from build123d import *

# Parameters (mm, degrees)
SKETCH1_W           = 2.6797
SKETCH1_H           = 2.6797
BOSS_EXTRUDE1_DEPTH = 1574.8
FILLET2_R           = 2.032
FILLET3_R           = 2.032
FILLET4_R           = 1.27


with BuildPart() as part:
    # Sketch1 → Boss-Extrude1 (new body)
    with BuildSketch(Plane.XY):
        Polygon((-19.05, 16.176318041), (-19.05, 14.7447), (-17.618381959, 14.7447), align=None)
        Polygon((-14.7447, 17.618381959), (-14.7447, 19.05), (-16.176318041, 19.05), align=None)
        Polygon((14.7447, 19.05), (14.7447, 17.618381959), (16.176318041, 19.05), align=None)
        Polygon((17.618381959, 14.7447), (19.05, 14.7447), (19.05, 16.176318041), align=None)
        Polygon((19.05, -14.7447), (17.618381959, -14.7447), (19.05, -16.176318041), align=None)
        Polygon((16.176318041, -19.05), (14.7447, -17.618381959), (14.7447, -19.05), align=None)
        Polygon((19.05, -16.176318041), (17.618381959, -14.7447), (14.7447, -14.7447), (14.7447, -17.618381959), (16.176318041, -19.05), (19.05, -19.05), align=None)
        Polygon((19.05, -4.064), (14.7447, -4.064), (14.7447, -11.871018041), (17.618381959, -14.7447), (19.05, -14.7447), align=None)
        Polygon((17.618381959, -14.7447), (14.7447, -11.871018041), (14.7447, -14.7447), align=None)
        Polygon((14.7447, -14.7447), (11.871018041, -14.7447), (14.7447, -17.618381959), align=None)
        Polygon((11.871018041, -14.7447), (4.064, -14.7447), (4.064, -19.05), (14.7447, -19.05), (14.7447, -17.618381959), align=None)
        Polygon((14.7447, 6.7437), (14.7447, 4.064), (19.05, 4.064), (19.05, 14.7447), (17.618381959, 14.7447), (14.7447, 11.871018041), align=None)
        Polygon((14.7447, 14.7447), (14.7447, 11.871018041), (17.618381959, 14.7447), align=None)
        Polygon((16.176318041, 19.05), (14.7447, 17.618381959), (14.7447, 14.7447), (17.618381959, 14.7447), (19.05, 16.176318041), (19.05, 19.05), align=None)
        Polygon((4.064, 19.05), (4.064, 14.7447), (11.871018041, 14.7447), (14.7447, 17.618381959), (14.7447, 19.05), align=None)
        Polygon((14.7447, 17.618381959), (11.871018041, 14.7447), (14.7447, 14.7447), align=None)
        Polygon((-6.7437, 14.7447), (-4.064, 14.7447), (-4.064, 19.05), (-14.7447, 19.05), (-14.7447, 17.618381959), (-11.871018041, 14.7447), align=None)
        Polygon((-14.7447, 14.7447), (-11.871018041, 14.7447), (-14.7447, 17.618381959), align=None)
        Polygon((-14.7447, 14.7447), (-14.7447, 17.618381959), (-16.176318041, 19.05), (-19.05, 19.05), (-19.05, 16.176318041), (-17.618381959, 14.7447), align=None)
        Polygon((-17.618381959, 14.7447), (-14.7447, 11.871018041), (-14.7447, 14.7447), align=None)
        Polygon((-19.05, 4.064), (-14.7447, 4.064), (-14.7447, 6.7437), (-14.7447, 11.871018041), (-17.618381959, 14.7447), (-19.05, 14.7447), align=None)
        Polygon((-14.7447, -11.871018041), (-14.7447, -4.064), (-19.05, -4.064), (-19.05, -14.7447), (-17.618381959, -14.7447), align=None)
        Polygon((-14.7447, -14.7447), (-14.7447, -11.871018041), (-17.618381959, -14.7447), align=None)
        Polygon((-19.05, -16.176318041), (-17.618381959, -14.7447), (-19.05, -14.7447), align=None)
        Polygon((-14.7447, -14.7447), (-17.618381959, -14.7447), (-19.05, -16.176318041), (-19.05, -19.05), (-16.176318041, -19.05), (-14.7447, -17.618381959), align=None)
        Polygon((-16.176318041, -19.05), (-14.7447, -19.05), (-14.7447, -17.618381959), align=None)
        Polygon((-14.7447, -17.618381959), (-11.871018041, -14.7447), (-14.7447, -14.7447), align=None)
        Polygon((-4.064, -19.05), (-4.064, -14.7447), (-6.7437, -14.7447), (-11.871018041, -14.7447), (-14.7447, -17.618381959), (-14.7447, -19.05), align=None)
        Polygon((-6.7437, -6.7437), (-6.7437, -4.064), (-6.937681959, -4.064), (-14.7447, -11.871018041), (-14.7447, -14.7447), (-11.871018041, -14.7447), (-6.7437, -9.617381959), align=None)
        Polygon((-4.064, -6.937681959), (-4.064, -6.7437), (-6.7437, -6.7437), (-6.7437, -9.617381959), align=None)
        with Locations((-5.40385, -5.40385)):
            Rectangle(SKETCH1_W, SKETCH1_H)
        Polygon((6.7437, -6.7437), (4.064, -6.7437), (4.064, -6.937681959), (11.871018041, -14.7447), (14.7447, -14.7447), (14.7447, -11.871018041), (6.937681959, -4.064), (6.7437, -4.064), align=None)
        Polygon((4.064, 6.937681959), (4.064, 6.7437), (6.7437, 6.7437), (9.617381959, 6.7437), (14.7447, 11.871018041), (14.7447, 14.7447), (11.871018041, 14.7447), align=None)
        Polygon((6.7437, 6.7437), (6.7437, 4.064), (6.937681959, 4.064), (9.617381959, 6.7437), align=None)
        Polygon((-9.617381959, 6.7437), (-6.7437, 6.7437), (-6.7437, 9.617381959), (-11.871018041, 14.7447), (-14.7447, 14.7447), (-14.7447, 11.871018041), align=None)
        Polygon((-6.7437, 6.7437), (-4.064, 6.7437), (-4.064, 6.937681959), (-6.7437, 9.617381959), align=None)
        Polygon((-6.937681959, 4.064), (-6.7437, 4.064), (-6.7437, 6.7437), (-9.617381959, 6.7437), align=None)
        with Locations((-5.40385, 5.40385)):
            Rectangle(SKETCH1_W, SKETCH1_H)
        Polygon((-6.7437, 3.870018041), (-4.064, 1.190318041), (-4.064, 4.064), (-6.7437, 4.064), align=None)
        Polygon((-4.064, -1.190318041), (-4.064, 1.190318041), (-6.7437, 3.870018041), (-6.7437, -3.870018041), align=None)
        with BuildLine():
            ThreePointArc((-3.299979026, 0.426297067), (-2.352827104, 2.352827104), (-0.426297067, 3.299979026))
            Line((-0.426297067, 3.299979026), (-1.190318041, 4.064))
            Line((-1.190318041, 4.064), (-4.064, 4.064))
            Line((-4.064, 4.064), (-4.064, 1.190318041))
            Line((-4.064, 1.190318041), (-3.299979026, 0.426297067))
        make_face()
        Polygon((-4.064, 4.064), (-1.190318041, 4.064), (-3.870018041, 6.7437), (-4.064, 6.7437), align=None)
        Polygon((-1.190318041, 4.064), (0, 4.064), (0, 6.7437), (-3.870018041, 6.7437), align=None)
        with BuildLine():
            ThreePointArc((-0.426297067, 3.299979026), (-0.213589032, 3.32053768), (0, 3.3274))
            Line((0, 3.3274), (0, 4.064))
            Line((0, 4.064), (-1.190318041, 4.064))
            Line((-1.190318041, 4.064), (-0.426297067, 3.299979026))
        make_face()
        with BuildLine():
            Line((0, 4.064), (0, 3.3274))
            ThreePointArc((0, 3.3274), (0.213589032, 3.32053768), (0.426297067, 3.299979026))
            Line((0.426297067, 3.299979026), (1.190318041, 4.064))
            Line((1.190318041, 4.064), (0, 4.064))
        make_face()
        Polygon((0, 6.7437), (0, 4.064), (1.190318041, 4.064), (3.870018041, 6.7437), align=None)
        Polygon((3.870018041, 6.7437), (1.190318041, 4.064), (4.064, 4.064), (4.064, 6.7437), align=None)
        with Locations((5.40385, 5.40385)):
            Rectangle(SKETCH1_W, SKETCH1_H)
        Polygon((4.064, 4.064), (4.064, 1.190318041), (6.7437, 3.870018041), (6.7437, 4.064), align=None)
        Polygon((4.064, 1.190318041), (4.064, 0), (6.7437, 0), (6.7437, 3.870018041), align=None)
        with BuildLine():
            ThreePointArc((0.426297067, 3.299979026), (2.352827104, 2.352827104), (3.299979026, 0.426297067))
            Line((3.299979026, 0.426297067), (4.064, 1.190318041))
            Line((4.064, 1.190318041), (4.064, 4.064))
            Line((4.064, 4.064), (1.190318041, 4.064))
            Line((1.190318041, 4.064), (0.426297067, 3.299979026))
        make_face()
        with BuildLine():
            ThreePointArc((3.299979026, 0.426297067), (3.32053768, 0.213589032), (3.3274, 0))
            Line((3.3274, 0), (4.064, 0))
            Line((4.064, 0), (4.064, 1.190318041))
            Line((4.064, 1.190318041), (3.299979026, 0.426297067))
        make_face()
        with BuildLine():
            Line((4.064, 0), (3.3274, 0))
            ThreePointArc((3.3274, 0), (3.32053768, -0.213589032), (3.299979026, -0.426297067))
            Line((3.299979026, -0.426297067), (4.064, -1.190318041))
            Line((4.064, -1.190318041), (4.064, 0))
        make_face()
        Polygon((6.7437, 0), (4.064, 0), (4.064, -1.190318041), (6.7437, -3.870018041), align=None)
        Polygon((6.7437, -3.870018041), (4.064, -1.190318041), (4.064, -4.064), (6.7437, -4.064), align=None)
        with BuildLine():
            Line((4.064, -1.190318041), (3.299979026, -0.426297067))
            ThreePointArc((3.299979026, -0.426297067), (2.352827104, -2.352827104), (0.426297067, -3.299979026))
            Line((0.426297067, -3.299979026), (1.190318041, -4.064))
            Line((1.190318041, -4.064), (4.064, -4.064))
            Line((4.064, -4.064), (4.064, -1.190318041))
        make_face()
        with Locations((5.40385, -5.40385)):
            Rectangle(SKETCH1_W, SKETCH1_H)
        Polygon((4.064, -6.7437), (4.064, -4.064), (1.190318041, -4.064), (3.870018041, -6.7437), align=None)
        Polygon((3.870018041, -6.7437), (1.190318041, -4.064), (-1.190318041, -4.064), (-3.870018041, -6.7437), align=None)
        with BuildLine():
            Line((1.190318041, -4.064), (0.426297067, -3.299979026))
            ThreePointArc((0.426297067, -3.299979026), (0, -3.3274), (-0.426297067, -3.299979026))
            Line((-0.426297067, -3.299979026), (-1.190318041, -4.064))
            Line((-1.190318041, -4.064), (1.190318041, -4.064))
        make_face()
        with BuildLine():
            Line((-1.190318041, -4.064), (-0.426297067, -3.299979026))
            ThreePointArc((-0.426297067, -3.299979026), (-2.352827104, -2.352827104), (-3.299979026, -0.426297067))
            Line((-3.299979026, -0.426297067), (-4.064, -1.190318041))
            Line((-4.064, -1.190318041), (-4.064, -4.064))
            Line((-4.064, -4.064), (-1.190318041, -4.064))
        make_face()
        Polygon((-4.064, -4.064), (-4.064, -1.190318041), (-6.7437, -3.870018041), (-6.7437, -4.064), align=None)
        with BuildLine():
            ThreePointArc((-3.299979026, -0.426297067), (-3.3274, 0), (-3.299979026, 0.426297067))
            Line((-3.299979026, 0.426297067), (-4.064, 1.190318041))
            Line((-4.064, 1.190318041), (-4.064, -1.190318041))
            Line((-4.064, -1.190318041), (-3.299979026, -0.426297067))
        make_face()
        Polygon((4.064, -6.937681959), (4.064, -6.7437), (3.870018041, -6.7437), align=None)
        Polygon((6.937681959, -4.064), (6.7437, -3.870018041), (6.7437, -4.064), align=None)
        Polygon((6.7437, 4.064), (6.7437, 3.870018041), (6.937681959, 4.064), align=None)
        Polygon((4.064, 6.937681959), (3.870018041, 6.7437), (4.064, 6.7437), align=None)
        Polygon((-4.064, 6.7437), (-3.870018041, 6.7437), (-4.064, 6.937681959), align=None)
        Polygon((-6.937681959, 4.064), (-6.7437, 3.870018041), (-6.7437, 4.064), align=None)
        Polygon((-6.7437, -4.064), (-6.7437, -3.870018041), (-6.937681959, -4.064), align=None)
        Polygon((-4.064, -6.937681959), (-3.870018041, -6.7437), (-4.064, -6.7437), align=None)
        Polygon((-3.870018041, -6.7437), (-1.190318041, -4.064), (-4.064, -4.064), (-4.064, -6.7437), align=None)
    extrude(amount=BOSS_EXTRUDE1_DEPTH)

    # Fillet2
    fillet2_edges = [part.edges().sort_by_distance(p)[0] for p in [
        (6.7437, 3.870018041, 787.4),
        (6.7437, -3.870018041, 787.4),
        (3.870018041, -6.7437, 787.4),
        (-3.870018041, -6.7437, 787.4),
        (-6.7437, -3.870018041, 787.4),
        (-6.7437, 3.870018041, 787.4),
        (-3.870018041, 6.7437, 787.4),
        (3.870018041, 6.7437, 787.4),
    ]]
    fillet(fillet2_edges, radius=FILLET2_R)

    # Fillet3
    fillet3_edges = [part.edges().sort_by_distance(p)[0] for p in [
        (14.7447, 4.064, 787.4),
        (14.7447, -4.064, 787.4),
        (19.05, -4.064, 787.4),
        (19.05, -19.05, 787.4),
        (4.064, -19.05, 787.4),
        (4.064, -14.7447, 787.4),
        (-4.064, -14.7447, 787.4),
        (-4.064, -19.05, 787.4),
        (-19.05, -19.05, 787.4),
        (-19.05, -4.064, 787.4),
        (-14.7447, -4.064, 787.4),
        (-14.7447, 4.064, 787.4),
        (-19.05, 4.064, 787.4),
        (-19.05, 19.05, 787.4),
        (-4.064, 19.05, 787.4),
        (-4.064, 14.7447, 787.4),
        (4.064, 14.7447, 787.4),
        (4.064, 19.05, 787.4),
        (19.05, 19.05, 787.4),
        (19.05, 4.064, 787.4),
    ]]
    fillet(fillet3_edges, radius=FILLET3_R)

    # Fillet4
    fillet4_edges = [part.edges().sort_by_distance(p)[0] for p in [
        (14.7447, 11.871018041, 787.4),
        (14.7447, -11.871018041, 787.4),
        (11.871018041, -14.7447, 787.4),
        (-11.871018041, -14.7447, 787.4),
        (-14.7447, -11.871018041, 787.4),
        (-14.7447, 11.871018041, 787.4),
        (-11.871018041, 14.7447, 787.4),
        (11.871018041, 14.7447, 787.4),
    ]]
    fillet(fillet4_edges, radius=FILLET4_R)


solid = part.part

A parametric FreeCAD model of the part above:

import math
import FreeCAD as App
import Part
import Sketcher
from FreeCAD import Vector
Q = App.Units.Quantity


def edges_at(feature, points):
    """Names of the edges that pass closest to the given points."""
    edges = feature.Shape.Edges
    near = lambda p: min(range(len(edges)), key=lambda i: edges[i].distToShape(Part.Vertex(*p))[0])
    return sorted({f"Edge{near(p) + 1}" for p in points})

doc = App.newDocument("Part")
body = doc.addObject("PartDesign::Body", "Body")

# Sketch on XY plane
sketch1 = doc.addObject("Sketcher::SketchObject", "Sketch")
body.addObject(sketch1)
sketch1.AttachmentSupport = (doc.XY_Plane, [""])
sketch1.MapMode = "FlatFace"
sketch1.addGeometry([
    Part.LineSegment(Vector(-11.87, -14.74, 0), Vector(-3.87, -6.74, 0)),  # 0
    Part.LineSegment(Vector(-3.87, -6.74, 0), Vector(3.87, -6.74, 0)),  # 1
    Part.LineSegment(Vector(3.87, -6.74, 0), Vector(11.87, -14.74, 0)),  # 2
    Part.LineSegment(Vector(11.87, -14.74, 0), Vector(4.06, -14.74, 0)),  # 3
    Part.LineSegment(Vector(4.06, -14.74, 0), Vector(4.06, -19.05, 0)),  # 4
    Part.LineSegment(Vector(4.06, -19.05, 0), Vector(19.05, -19.05, 0)),  # 5
    Part.LineSegment(Vector(19.05, -19.05, 0), Vector(19.05, -4.06, 0)),  # 6
    Part.LineSegment(Vector(19.05, -4.06, 0), Vector(14.74, -4.06, 0)),  # 7
    Part.LineSegment(Vector(14.74, -4.06, 0), Vector(14.74, -11.87, 0)),  # 8
    Part.LineSegment(Vector(14.74, -11.87, 0), Vector(6.74, -3.87, 0)),  # 9
    Part.LineSegment(Vector(6.74, -3.87, 0), Vector(6.74, 3.87, 0)),  # 10
    Part.LineSegment(Vector(6.74, 3.87, 0), Vector(14.74, 11.87, 0)),  # 11
    Part.LineSegment(Vector(14.74, 11.87, 0), Vector(14.74, 4.06, 0)),  # 12
    Part.LineSegment(Vector(14.74, 4.06, 0), Vector(19.05, 4.06, 0)),  # 13
    Part.LineSegment(Vector(19.05, 4.06, 0), Vector(19.05, 19.05, 0)),  # 14
    Part.LineSegment(Vector(19.05, 19.05, 0), Vector(4.06, 19.05, 0)),  # 15
    Part.LineSegment(Vector(4.06, 19.05, 0), Vector(4.06, 14.74, 0)),  # 16
    Part.LineSegment(Vector(4.06, 14.74, 0), Vector(11.87, 14.74, 0)),  # 17
    Part.LineSegment(Vector(11.87, 14.74, 0), Vector(3.87, 6.74, 0)),  # 18
    Part.LineSegment(Vector(3.87, 6.74, 0), Vector(-3.87, 6.74, 0)),  # 19
    Part.LineSegment(Vector(-3.87, 6.74, 0), Vector(-11.87, 14.74, 0)),  # 20
    Part.LineSegment(Vector(-11.87, 14.74, 0), Vector(-4.06, 14.74, 0)),  # 21
    Part.LineSegment(Vector(-4.06, 14.74, 0), Vector(-4.06, 19.05, 0)),  # 22
    Part.LineSegment(Vector(-4.06, 19.05, 0), Vector(-19.05, 19.05, 0)),  # 23
    Part.LineSegment(Vector(-19.05, 19.05, 0), Vector(-19.05, 4.06, 0)),  # 24
    Part.LineSegment(Vector(-19.05, 4.06, 0), Vector(-14.74, 4.06, 0)),  # 25
    Part.LineSegment(Vector(-14.74, 4.06, 0), Vector(-14.74, 11.87, 0)),  # 26
    Part.LineSegment(Vector(-14.74, 11.87, 0), Vector(-6.74, 3.87, 0)),  # 27
    Part.LineSegment(Vector(-6.74, 3.87, 0), Vector(-6.74, -3.87, 0)),  # 28
    Part.LineSegment(Vector(-6.74, -3.87, 0), Vector(-14.74, -11.87, 0)),  # 29
    Part.LineSegment(Vector(-14.74, -11.87, 0), Vector(-14.74, -4.06, 0)),  # 30
    Part.LineSegment(Vector(-14.74, -4.06, 0), Vector(-19.05, -4.06, 0)),  # 31
    Part.LineSegment(Vector(-19.05, -4.06, 0), Vector(-19.05, -19.05, 0)),  # 32
    Part.LineSegment(Vector(-19.05, -19.05, 0), Vector(-4.06, -19.05, 0)),  # 33
    Part.LineSegment(Vector(-4.06, -19.05, 0), Vector(-4.06, -14.74, 0)),  # 34
    Part.LineSegment(Vector(-4.06, -14.74, 0), Vector(-11.87, -14.74, 0)),  # 35
    Part.ArcOfCircle(Part.Circle(Vector(0, 0, 0), Vector(0, 0, 1), 3.33), math.radians(97), math.radians(173)),  # 36
    Part.ArcOfCircle(Part.Circle(Vector(0, 0, 0), Vector(0, 0, 1), 3.33), math.radians(90), math.radians(97.36)),  # 37
    Part.ArcOfCircle(Part.Circle(Vector(0, 0, 0), Vector(0, 0, 1), 3.33), math.radians(82.64), math.radians(90)),  # 38
    Part.ArcOfCircle(Part.Circle(Vector(0, 0, 0), Vector(0, 0, 1), 3.33), math.radians(7), math.radians(83)),  # 39
    Part.ArcOfCircle(Part.Circle(Vector(0, 0, 0), Vector(0, 0, 1), 3.33), math.radians(0), math.radians(7.36)),  # 40
    Part.ArcOfCircle(Part.Circle(Vector(0, 0, 0), Vector(0, 0, 1), 3.33), math.radians(-7.36), math.radians(0)),  # 41
    Part.ArcOfCircle(Part.Circle(Vector(0, 0, 0), Vector(0, 0, 1), 3.33), math.radians(-83), math.radians(-7)),  # 42
    Part.ArcOfCircle(Part.Circle(Vector(0, 0, 0), Vector(0, 0, 1), 3.33), math.radians(-97.36), math.radians(-82.64)),  # 43
    Part.ArcOfCircle(Part.Circle(Vector(0, 0, 0), Vector(0, 0, 1), 3.33), math.radians(-173), math.radians(-97)),  # 44
    Part.ArcOfCircle(Part.Circle(Vector(0, 0, 0), Vector(0, 0, 1), 3.33), math.radians(172.64), math.radians(187.36)),  # 45
], False)
sketch1.addConstraint([
    Sketcher.Constraint("Coincident", 0, 2, 1, 1),
    Sketcher.Constraint("Coincident", 1, 2, 2, 1),
    Sketcher.Constraint("Coincident", 2, 2, 3, 1),
    Sketcher.Constraint("Coincident", 3, 2, 4, 1),
    Sketcher.Constraint("Coincident", 4, 2, 5, 1),
    Sketcher.Constraint("Coincident", 5, 2, 6, 1),
    Sketcher.Constraint("Coincident", 6, 2, 7, 1),
    Sketcher.Constraint("Coincident", 7, 2, 8, 1),
    Sketcher.Constraint("Coincident", 8, 2, 9, 1),
    Sketcher.Constraint("Coincident", 9, 2, 10, 1),
    Sketcher.Constraint("Coincident", 10, 2, 11, 1),
    Sketcher.Constraint("Coincident", 11, 2, 12, 1),
    Sketcher.Constraint("Coincident", 12, 2, 13, 1),
    Sketcher.Constraint("Coincident", 13, 2, 14, 1),
    Sketcher.Constraint("Coincident", 14, 2, 15, 1),
    Sketcher.Constraint("Coincident", 15, 2, 16, 1),
    Sketcher.Constraint("Coincident", 16, 2, 17, 1),
    Sketcher.Constraint("Coincident", 17, 2, 18, 1),
    Sketcher.Constraint("Coincident", 18, 2, 19, 1),
    Sketcher.Constraint("Coincident", 19, 2, 20, 1),
    Sketcher.Constraint("Coincident", 20, 2, 21, 1),
    Sketcher.Constraint("Coincident", 21, 2, 22, 1),
    Sketcher.Constraint("Coincident", 22, 2, 23, 1),
    Sketcher.Constraint("Coincident", 23, 2, 24, 1),
    Sketcher.Constraint("Coincident", 24, 2, 25, 1),
    Sketcher.Constraint("Coincident", 25, 2, 26, 1),
    Sketcher.Constraint("Coincident", 26, 2, 27, 1),
    Sketcher.Constraint("Coincident", 27, 2, 28, 1),
    Sketcher.Constraint("Coincident", 28, 2, 29, 1),
    Sketcher.Constraint("Coincident", 29, 2, 30, 1),
    Sketcher.Constraint("Coincident", 30, 2, 31, 1),
    Sketcher.Constraint("Coincident", 31, 2, 32, 1),
    Sketcher.Constraint("Coincident", 32, 2, 33, 1),
    Sketcher.Constraint("Coincident", 33, 2, 34, 1),
    Sketcher.Constraint("Coincident", 34, 2, 35, 1),
    Sketcher.Constraint("Coincident", 35, 2, 0, 1),
    Sketcher.Constraint("Tangent", 36, 1, 37, 2),
    Sketcher.Constraint("Tangent", 37, 1, 38, 2),
    Sketcher.Constraint("Tangent", 38, 1, 39, 2),
    Sketcher.Constraint("Tangent", 39, 1, 40, 2),
    Sketcher.Constraint("Tangent", 40, 1, 41, 2),
    Sketcher.Constraint("Tangent", 41, 1, 42, 2),
    Sketcher.Constraint("Tangent", 42, 1, 43, 2),
    Sketcher.Constraint("Tangent", 43, 1, 44, 2),
    Sketcher.Constraint("Tangent", 44, 1, 45, 2),
    Sketcher.Constraint("Tangent", 45, 1, 36, 2),
    Sketcher.Constraint("Horizontal", 1),
    Sketcher.Constraint("Horizontal", 3),
    Sketcher.Constraint("Vertical", 4),
    Sketcher.Constraint("Horizontal", 5),
    Sketcher.Constraint("Vertical", 6),
    Sketcher.Constraint("Horizontal", 7),
    Sketcher.Constraint("Vertical", 8),
    Sketcher.Constraint("Vertical", 10),
    Sketcher.Constraint("Vertical", 12),
    Sketcher.Constraint("Horizontal", 13),
    Sketcher.Constraint("Vertical", 14),
    Sketcher.Constraint("Horizontal", 15),
    Sketcher.Constraint("Vertical", 16),
    Sketcher.Constraint("Horizontal", 17),
    Sketcher.Constraint("Horizontal", 19),
    Sketcher.Constraint("Horizontal", 21),
    Sketcher.Constraint("Vertical", 22),
    Sketcher.Constraint("Horizontal", 23),
    Sketcher.Constraint("Vertical", 24),
    Sketcher.Constraint("Horizontal", 25),
    Sketcher.Constraint("Vertical", 26),
    Sketcher.Constraint("Vertical", 28),
    Sketcher.Constraint("Vertical", 30),
    Sketcher.Constraint("Horizontal", 31),
    Sketcher.Constraint("Vertical", 32),
    Sketcher.Constraint("Horizontal", 33),
    Sketcher.Constraint("Vertical", 34),
    Sketcher.Constraint("Horizontal", 35),
    Sketcher.Constraint("Coincident", 36, 3, -1, 1),
    Sketcher.Constraint("Coincident", 38, 3, -1, 1),
    Sketcher.Constraint("Coincident", 40, 3, -1, 1),
    Sketcher.Constraint("Coincident", 42, 3, -1, 1),
    Sketcher.Constraint("Equal", 42, 43),
    Sketcher.Constraint("Symmetric", 0, 2, 18, 2, -1, 1),
    Sketcher.Constraint("Symmetric", 2, 2, 20, 2, -1, 1),
    Sketcher.Constraint("Symmetric", 4, 2, 22, 2, -1, 1),
    Sketcher.Constraint("Symmetric", 6, 2, 24, 2, -1, 1),
    Sketcher.Constraint("Symmetric", 8, 2, 26, 2, -1, 1),
    Sketcher.Constraint("Symmetric", 9, 2, 27, 2, -1, 1),
    Sketcher.Constraint("Symmetric", 11, 2, 29, 2, -1, 1),
    Sketcher.Constraint("Symmetric", 13, 2, 31, 2, -1, 1),
    Sketcher.Constraint("Symmetric", 15, 2, 33, 2, -1, 1),
    Sketcher.Constraint("Symmetric", 17, 2, 35, 2, -1, 1),
    Sketcher.Constraint("Symmetric", 17, 2, 20, 2, -2),
    Sketcher.Constraint("Symmetric", 15, 2, 22, 2, -2),
    Sketcher.Constraint("Symmetric", 13, 2, 24, 2, -2),
    Sketcher.Constraint("Symmetric", 11, 2, 26, 2, -2),
    Sketcher.Constraint("PointOnObject", 37, 1, -2),
    Sketcher.Constraint("PointOnObject", 40, 1, -1),
    Sketcher.Constraint("Perpendicular", 0, 2),
    Sketcher.Constraint("Parallel", 2, 9),
    Sketcher.Constraint("Perpendicular", 9, 11),
    Sketcher.Constraint("Perpendicular", 18, 20),
    Sketcher.Constraint("Perpendicular", 27, 29),
    Sketcher.Constraint("Horizontal", 10, 2, 27, 2),
    Sketcher.Constraint("Horizontal", 36, 1, 38, 1),
    Sketcher.Constraint("Horizontal", 42, 1, 43, 1),
    Sketcher.Constraint("Horizontal", 41, 1, 44, 1),
    Sketcher.Constraint("Horizontal", 39, 1, 45, 1),
    Sketcher.Constraint("Vertical", 39, 1, 41, 1),
    Sketcher.Constraint("Vertical", 38, 1, 42, 1),
    Sketcher.Constraint("Equal", 31, 4),
    Sketcher.Constraint("Equal", 33, 6),
    Sketcher.Constraint("Equal", 35, 8),
    Sketcher.Constraint("Equal", 19, 10),
    Sketcher.Constraint("Equal", 2, 9),
    Sketcher.Constraint("Radius", 36, Q("0.131 in")),
    Sketcher.Constraint("DistanceX", 5, 1, 5, 2, Q("0.59 in")),
    Sketcher.Constraint("DistanceX", -1, 1, 3, 2, Q("0.16 in")),
    Sketcher.Constraint("DistanceX", 7, 2, 7, 1, Q("0.1695 in")),
    Sketcher.Constraint("DistanceX", 1, 2, 2, 2, Q("0.315 in")),
    Sketcher.Constraint("DistanceX", 3, 2, 3, 1, 7.807018),
    Sketcher.Constraint("DistanceY", -1, 1, 36, 1, 3.299979),
    Sketcher.Constraint("DistanceX", -1, 1, 39, 1, 3.299979),
])
pad1 = doc.addObject("PartDesign::Pad", "Pad")
body.addObject(pad1)
pad1.Profile = sketch1
pad1.Length = Q("62 in")
doc.recompute()

fillet = doc.addObject("PartDesign::Fillet", "Fillet")
body.addObject(fillet)
fillet.Base = (pad1, edges_at(pad1, [
    (6.744, 3.87, 787.4),
    (6.744, -3.87, 787.4),
    (3.87, -6.744, 787.4),
    (-3.87, -6.744, 787.4),
    (-6.744, -3.87, 787.4),
    (-6.744, 3.87, 787.4),
    (-3.87, 6.744, 787.4),
    (3.87, 6.744, 787.4),
]))
fillet.Radius = Q("0.08 in")
doc.recompute()

fillet2 = doc.addObject("PartDesign::Fillet", "Fillet001")
body.addObject(fillet2)
fillet2.Base = (fillet, edges_at(fillet, [
    (14.745, 4.064, 787.4),
    (14.745, -4.064, 787.4),
    (19.05, -4.064, 787.4),
    (19.05, -19.05, 787.4),
    (4.064, -19.05, 787.4),
    (4.064, -14.745, 787.4),
    (-4.064, -14.745, 787.4),
    (-4.064, -19.05, 787.4),
    (-19.05, -19.05, 787.4),
    (-19.05, -4.064, 787.4),
    (-14.745, -4.064, 787.4),
    (-14.745, 4.064, 787.4),
    (-19.05, 4.064, 787.4),
    (-19.05, 19.05, 787.4),
    (-4.064, 19.05, 787.4),
    (-4.064, 14.745, 787.4),
    (4.064, 14.745, 787.4),
    (4.064, 19.05, 787.4),
    (19.05, 19.05, 787.4),
    (19.05, 4.064, 787.4),
]))
fillet2.Radius = Q("0.08 in")
doc.recompute()

fillet3 = doc.addObject("PartDesign::Fillet", "Fillet002")
body.addObject(fillet3)
fillet3.Base = (fillet2, edges_at(fillet2, [
    (14.745, 11.871, 787.4),
    (14.745, -11.871, 787.4),
    (11.871, -14.745, 787.4),
    (-11.871, -14.745, 787.4),
    (-14.745, -11.871, 787.4),
    (-14.745, 11.871, 787.4),
    (-11.871, 14.745, 787.4),
    (11.871, 14.745, 787.4),
]))
fillet3.Radius = Q("0.05 in")

doc.recompute()
